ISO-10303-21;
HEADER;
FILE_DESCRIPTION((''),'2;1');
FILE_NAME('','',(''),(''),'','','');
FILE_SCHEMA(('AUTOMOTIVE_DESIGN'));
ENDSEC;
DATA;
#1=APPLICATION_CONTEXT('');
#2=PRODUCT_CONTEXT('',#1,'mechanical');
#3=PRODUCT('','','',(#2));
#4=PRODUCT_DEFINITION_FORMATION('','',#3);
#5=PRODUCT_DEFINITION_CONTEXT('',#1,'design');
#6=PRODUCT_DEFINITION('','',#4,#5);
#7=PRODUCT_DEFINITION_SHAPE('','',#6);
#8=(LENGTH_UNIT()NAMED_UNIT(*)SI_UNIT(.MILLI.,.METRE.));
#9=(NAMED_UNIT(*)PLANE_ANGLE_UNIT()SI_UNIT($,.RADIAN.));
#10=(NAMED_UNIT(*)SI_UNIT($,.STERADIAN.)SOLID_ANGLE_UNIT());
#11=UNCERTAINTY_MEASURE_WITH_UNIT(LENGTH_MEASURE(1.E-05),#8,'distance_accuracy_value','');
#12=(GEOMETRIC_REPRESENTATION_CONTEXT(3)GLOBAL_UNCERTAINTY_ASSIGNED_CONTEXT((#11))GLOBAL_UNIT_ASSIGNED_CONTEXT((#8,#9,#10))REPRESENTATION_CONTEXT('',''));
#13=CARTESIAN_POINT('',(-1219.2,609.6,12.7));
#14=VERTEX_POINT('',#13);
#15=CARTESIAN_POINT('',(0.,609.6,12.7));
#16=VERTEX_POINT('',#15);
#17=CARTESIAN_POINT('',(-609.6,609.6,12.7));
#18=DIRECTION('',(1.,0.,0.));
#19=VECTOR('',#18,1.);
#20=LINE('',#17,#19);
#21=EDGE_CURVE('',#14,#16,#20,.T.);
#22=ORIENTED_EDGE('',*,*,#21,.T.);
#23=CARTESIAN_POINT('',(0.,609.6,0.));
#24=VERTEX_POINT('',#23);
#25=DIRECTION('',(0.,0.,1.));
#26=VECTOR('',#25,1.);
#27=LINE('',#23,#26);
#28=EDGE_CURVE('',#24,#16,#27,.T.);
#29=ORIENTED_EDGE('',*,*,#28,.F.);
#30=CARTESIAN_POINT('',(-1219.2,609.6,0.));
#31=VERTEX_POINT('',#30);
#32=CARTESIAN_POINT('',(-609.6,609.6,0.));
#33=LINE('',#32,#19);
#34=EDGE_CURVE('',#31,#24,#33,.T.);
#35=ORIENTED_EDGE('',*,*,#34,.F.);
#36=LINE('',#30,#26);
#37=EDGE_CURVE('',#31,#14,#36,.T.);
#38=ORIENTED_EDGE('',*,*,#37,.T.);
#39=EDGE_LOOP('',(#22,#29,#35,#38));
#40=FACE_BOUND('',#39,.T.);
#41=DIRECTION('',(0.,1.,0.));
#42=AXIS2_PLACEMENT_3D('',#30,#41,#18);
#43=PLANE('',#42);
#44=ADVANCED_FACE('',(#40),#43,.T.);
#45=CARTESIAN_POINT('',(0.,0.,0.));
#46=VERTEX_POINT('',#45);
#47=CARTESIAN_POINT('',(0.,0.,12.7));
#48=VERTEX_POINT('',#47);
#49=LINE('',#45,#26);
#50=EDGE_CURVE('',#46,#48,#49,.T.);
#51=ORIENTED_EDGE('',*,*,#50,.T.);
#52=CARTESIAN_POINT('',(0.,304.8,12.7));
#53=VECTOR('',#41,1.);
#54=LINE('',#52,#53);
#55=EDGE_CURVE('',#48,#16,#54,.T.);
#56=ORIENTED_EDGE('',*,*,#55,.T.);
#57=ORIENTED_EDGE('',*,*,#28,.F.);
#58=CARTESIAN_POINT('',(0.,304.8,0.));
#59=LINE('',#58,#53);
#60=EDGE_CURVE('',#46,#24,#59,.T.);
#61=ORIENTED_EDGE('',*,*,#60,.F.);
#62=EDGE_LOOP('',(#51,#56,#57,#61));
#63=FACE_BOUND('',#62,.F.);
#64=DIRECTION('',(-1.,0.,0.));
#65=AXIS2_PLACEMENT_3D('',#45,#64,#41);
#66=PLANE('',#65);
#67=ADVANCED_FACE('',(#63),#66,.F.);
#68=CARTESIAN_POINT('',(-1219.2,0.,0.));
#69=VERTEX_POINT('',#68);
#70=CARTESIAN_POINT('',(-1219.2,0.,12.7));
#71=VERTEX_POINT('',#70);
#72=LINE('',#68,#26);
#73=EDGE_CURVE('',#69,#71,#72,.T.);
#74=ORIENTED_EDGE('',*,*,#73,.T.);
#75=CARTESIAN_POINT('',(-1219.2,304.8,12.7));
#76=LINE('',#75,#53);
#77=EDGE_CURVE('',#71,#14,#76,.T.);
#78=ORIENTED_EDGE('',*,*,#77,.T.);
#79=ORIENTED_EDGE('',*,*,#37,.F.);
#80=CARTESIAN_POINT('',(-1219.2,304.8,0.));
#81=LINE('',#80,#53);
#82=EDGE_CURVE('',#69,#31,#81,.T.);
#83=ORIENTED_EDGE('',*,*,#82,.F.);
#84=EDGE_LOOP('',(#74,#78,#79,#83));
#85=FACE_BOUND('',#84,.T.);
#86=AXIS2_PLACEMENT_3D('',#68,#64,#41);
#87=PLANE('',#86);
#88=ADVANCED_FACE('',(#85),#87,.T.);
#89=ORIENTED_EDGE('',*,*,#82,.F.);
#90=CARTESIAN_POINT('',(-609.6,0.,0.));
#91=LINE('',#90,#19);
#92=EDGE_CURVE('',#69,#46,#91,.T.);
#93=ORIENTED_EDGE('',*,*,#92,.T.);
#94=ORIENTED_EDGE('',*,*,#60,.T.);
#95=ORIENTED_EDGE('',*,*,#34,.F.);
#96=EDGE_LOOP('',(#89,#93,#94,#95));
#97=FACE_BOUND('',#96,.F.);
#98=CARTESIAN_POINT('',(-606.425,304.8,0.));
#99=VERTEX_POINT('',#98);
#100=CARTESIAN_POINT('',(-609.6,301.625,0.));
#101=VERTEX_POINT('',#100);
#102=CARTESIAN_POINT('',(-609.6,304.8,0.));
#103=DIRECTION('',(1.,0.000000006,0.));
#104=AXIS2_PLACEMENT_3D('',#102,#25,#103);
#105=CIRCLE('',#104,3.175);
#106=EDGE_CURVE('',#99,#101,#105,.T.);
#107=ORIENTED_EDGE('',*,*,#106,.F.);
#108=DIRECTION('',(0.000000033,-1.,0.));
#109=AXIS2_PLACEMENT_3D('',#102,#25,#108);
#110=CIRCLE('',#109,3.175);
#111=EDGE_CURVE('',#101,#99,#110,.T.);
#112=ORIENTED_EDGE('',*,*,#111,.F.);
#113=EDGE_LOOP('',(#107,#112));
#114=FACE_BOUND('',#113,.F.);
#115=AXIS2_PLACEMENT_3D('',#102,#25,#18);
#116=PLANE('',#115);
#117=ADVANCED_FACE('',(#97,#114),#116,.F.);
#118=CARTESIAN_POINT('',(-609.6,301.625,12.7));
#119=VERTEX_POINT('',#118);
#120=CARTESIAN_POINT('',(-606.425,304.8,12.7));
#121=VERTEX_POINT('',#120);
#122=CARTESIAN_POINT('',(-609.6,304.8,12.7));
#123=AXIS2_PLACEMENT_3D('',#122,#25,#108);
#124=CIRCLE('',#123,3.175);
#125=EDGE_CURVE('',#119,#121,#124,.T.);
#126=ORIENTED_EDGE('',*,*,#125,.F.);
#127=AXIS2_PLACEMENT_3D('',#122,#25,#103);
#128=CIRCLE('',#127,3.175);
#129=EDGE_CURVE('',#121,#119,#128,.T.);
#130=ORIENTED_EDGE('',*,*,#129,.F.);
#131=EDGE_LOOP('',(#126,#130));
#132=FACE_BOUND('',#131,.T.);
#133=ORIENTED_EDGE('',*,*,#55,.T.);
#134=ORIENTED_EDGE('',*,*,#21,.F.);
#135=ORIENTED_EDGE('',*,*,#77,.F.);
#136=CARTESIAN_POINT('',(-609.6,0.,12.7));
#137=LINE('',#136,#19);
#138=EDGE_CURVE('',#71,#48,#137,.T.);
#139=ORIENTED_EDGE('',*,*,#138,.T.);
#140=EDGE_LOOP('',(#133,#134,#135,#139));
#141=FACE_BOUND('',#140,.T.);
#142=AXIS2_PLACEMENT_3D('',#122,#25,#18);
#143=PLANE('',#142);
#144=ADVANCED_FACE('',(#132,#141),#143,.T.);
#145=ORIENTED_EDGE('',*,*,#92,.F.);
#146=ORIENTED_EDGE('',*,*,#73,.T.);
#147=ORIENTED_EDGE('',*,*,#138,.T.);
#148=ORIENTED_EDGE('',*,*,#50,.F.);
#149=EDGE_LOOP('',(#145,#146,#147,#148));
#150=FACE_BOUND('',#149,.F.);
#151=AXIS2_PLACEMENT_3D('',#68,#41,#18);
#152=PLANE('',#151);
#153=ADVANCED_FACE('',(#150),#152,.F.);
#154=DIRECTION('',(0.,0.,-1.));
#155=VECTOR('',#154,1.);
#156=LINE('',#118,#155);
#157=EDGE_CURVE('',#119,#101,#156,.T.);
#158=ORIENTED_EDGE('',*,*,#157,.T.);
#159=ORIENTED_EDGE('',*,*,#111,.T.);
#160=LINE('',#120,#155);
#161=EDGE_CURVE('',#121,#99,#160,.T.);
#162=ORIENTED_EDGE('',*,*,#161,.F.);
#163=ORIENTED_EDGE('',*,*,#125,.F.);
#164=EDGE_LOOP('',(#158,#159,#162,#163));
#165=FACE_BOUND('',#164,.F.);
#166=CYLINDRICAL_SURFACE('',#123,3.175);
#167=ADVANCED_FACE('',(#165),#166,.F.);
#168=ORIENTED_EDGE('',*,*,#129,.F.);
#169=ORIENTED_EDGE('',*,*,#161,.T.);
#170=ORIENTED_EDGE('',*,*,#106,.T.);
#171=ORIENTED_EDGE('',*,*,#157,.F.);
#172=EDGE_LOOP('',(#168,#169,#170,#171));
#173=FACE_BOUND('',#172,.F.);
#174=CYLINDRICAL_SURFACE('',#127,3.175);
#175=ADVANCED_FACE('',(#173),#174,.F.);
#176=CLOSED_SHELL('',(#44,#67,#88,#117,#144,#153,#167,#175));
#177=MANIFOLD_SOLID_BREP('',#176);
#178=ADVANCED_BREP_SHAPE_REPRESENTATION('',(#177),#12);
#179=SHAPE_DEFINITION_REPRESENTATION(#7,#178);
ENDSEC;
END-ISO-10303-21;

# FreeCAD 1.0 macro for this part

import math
import FreeCAD as App
import Part
import Sketcher
from FreeCAD import Vector
Q = App.Units.Quantity


def add_polygon(sketch, points):
    """Adds a closed chain of lines whose ends are joined by coincident constraints."""
    first, n = sketch.GeometryCount, len(points)
    for a, b in zip(points, points[1:] + points[:1]):
        sketch.addGeometry(Part.LineSegment(App.Vector(*a, 0), App.Vector(*b, 0)), False)
    for i in range(n):
        sketch.addConstraint(Sketcher.Constraint("Coincident", first + i, 2, first + (i + 1) % n, 1))

doc = App.newDocument("Part")
body = doc.addObject("PartDesign::Body", "Body")

# Sketch on XY plane
sketch1 = doc.addObject("Sketcher::SketchObject", "Sketch")
body.addObject(sketch1)
sketch1.AttachmentSupport = (doc.XY_Plane, [""])
sketch1.MapMode = "FlatFace"
add_polygon(sketch1, [(-1219.2, 609.6), (-1219.2, 0), (0, 0), (0, 609.6)])  # lines 0-3
sketch1.addConstraint([
    Sketcher.Constraint("Vertical", 0),
    Sketcher.Constraint("Horizontal", 1),
    Sketcher.Constraint("Vertical", 2),
    Sketcher.Constraint("Horizontal", 3),
    Sketcher.Constraint("Coincident", 1, 2, -1, 1),
    Sketcher.Constraint("DistanceX", 1, 1, 1, 2, Q("48 in")),
    Sketcher.Constraint("DistanceY", 0, 2, 0, 1, Q("24 in")),
])
pad1 = doc.addObject("PartDesign::Pad", "Pad")
body.addObject(pad1)
pad1.Profile = sketch1
pad1.Length = Q("0.5 in")

# Sketch on XY plane
sketch2 = doc.addObject("Sketcher::SketchObject", "Sketch001")
body.addObject(sketch2)
sketch2.AttachmentSupport = (doc.XY_Plane, [""])
sketch2.MapMode = "FlatFace"
sketch2.AttachmentOffset = App.Placement(Vector(0, 0, 0.5 * 25.4), App.Rotation())
sketch2.addGeometry([
    Part.ArcOfCircle(Part.Circle(Vector(-609.6, 304.8, 0), Vector(0, 0, 1), 3.175), math.radians(-89.999998), math.radians(-0.000002)),
    Part.ArcOfCircle(Part.Circle(Vector(-609.6, 304.8, 0), Vector(0, 0, 1), 3.175), math.radians(0), math.radians(270)),
], False)
sketch2.addConstraint([
    Sketcher.Constraint("Tangent", 0, 1, 1, 2),
    Sketcher.Constraint("Coincident", 1, 1, 0, 2),
    Sketcher.Constraint("Horizontal", 0, 3, 1, 1),
    Sketcher.Constraint("Vertical", 1, 3, 0, 1),
    Sketcher.Constraint("DistanceX", 0, 3, -1, 1, Q("24 in")),
    Sketcher.Constraint("DistanceY", -1, 1, 0, 3, Q("12 in")),
    Sketcher.Constraint("Radius", 0, Q("0.125 in")),
])
pocket1 = doc.addObject("PartDesign::Pocket", "Pocket")
body.addObject(pocket1)
pocket1.Profile = sketch2
pocket1.Length = Q("1 in")

doc.recompute()
